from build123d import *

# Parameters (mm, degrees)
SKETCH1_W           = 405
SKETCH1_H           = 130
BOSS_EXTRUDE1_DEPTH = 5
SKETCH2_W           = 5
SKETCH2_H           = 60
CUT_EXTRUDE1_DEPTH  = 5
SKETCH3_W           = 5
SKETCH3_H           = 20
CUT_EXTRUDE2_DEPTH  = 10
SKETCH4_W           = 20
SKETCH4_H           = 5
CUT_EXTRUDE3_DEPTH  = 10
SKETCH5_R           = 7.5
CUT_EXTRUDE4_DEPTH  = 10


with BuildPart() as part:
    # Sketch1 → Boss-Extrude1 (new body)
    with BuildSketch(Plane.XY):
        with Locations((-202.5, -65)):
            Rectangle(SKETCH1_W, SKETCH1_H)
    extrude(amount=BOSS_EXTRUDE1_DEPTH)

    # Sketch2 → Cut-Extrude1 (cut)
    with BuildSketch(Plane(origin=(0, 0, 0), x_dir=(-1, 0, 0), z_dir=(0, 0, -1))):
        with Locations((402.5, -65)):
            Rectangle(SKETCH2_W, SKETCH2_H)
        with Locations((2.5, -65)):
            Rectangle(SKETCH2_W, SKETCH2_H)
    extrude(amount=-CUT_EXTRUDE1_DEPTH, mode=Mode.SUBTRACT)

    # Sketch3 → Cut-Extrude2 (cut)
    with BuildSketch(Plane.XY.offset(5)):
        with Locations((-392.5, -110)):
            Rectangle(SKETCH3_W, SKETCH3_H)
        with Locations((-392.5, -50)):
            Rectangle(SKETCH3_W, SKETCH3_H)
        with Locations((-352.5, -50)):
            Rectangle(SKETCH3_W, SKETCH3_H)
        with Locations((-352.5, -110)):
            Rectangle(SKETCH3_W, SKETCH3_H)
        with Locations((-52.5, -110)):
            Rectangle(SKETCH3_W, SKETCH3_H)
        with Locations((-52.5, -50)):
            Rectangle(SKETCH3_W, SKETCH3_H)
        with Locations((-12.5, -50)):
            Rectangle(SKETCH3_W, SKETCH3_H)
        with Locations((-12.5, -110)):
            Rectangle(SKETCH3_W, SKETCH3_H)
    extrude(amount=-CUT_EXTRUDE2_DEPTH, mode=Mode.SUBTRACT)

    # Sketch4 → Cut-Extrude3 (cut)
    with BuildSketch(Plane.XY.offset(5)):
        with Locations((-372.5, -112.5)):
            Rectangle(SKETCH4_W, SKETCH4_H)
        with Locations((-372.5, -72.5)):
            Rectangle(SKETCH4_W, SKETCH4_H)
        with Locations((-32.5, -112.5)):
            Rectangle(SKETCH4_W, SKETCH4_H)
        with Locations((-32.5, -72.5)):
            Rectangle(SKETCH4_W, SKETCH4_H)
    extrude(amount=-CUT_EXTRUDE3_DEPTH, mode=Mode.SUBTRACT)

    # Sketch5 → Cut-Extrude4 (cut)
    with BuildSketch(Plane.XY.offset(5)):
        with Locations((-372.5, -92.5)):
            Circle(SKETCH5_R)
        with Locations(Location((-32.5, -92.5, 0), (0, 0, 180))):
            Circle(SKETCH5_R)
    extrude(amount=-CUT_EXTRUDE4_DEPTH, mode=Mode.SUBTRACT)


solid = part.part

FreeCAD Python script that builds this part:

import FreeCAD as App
import Part
import Sketcher
from FreeCAD import Vector

doc = App.newDocument("Part")
body = doc.addObject("PartDesign::Body", "Body")

# Sketch on XY plane
sketch1 = body.newObject("Sketcher::SketchObject", "Sketch")
sketch1.AttachmentSupport = (doc.getObject("XY_Plane"), [""])
sketch1.MapMode = "FlatFace"
sketch1.addGeometry([
    Part.LineSegment(Vector(-405, 0, 0), Vector(-405, -130, 0)),
    Part.LineSegment(Vector(-405, -130, 0), Vector(0, -130, 0)),
    Part.LineSegment(Vector(0, -130, 0), Vector(0, 0, 0)),
    Part.LineSegment(Vector(0, 0, 0), Vector(-405, 0, 0)),
], False)
sketch1.addConstraint([
    Sketcher.Constraint("Coincident", 0, 2, 1, 1),
    Sketcher.Constraint("Coincident", 1, 2, 2, 1),
    Sketcher.Constraint("Coincident", 2, 2, 3, 1),
    Sketcher.Constraint("Coincident", 3, 2, 0, 1),
    Sketcher.Constraint("Vertical", 0),
    Sketcher.Constraint("Horizontal", 1),
    Sketcher.Constraint("Vertical", 2),
    Sketcher.Constraint("Horizontal", 3),
    Sketcher.Constraint("Coincident", 2, 2, -1, 1),
    Sketcher.Constraint("DistanceX", 1, 1, 1, 2, 405.0),
    Sketcher.Constraint("DistanceY", 0, 2, 0, 1, 130.0),
])
pad1 = body.newObject("PartDesign::Pad", "Pad")
pad1.Profile = sketch1
pad1.Length = 5

# Sketch on XY plane
sketch2 = body.newObject("Sketcher::SketchObject", "Sketch001")
sketch2.AttachmentSupport = (doc.getObject("XY_Plane"), [""])
sketch2.MapMode = "FlatFace"
sketch2.addGeometry([
    Part.LineSegment(Vector(-400, -35, 0), Vector(-400, -95, 0)),  # 0
    Part.LineSegment(Vector(-400, -95, 0), Vector(-405, -95, 0)),  # 1
    Part.LineSegment(Vector(-405, -95, 0), Vector(-405, -35, 0)),  # 2
    Part.LineSegment(Vector(-405, -35, 0), Vector(-400, -35, 0)),  # 3
    Part.LineSegment(Vector(0, -35, 0), Vector(0, -95, 0)),  # 4
    Part.LineSegment(Vector(0, -95, 0), Vector(-5, -95, 0)),  # 5
    Part.LineSegment(Vector(-5, -95, 0), Vector(-5, -35, 0)),  # 6
    Part.LineSegment(Vector(-5, -35, 0), Vector(0, -35, 0)),  # 7
], False)
sketch2.addConstraint([
    Sketcher.Constraint("Coincident", 0, 2, 1, 1),
    Sketcher.Constraint("Coincident", 1, 2, 2, 1),
    Sketcher.Constraint("Coincident", 2, 2, 3, 1),
    Sketcher.Constraint("Coincident", 3, 2, 0, 1),
    Sketcher.Constraint("Coincident", 4, 2, 5, 1),
    Sketcher.Constraint("Coincident", 5, 2, 6, 1),
    Sketcher.Constraint("Coincident", 6, 2, 7, 1),
    Sketcher.Constraint("Coincident", 7, 2, 4, 1),
    Sketcher.Constraint("Vertical", 0),
    Sketcher.Constraint("Horizontal", 1),
    Sketcher.Constraint("Vertical", 2),
    Sketcher.Constraint("Horizontal", 3),
    Sketcher.Constraint("Vertical", 4),
    Sketcher.Constraint("Horizontal", 5),
    Sketcher.Constraint("Vertical", 6),
    Sketcher.Constraint("Horizontal", 7),
    Sketcher.Constraint("PointOnObject", 4, 2, -2),
    Sketcher.Constraint("Horizontal", 1, 2, 4, 2),
    Sketcher.Constraint("Horizontal", 3, 2, 6, 2),
    Sketcher.Constraint("Equal", 3, 5),
    Sketcher.Constraint("DistanceX", 1, 2, 1, 1, 5.0),
    Sketcher.Constraint("DistanceY", 0, 2, 0, 1, 60.0),
    Sketcher.Constraint("DistanceX", 0, 2, -1, 1, 400.0),
    Sketcher.Constraint("DistanceY", 0, 2, -1, 1, 95.0),
])
pocket1 = body.newObject("PartDesign::Pocket", "Pocket")
pocket1.Profile = sketch2
pocket1.Length = 5
pocket1.Reversed = True

# Sketch on XY plane
sketch3 = body.newObject("Sketcher::SketchObject", "Sketch002")
sketch3.AttachmentSupport = (doc.getObject("XY_Plane"), [""])
sketch3.MapMode = "FlatFace"
sketch3.AttachmentOffset = App.Placement(Vector(0, 0, 5), App.Rotation())
sketch3.addGeometry([
    Part.LineSegment(Vector(-395, -100, 0), Vector(-395, -120, 0)),  # 0
    Part.LineSegment(Vector(-395, -120, 0), Vector(-390, -120, 0)),  # 1
    Part.LineSegment(Vector(-390, -120, 0), Vector(-390, -100, 0)),  # 2
    Part.LineSegment(Vector(-390, -100, 0), Vector(-395, -100, 0)),  # 3
    Part.LineSegment(Vector(-395, -40, 0), Vector(-395, -60, 0)),  # 4
    Part.LineSegment(Vector(-395, -60, 0), Vector(-390, -60, 0)),  # 5
    Part.LineSegment(Vector(-390, -60, 0), Vector(-390, -40, 0)),  # 6
    Part.LineSegment(Vector(-390, -40, 0), Vector(-395, -40, 0)),  # 7
    Part.LineSegment(Vector(-355, -40, 0), Vector(-355, -60, 0)),  # 8
    Part.LineSegment(Vector(-355, -60, 0), Vector(-350, -60, 0)),  # 9
    Part.LineSegment(Vector(-350, -60, 0), Vector(-350, -40, 0)),  # 10
    Part.LineSegment(Vector(-350, -40, 0), Vector(-355, -40, 0)),  # 11
    Part.LineSegment(Vector(-355, -100, 0), Vector(-355, -120, 0)),  # 12
    Part.LineSegment(Vector(-355, -120, 0), Vector(-350, -120, 0)),  # 13
    Part.LineSegment(Vector(-350, -120, 0), Vector(-350, -100, 0)),  # 14
    Part.LineSegment(Vector(-350, -100, 0), Vector(-355, -100, 0)),  # 15
    Part.LineSegment(Vector(-55, -100, 0), Vector(-55, -120, 0)),  # 16
    Part.LineSegment(Vector(-55, -120, 0), Vector(-50, -120, 0)),  # 17
    Part.LineSegment(Vector(-50, -120, 0), Vector(-50, -100, 0)),  # 18
    Part.LineSegment(Vector(-50, -100, 0), Vector(-55, -100, 0)),  # 19
    Part.LineSegment(Vector(-55, -40, 0), Vector(-55, -60, 0)),  # 20
    Part.LineSegment(Vector(-55, -60, 0), Vector(-50, -60, 0)),  # 21
    Part.LineSegment(Vector(-50, -60, 0), Vector(-50, -40, 0)),  # 22
    Part.LineSegment(Vector(-50, -40, 0), Vector(-55, -40, 0)),  # 23
    Part.LineSegment(Vector(-15, -40, 0), Vector(-15, -60, 0)),  # 24
    Part.LineSegment(Vector(-15, -60, 0), Vector(-10, -60, 0)),  # 25
    Part.LineSegment(Vector(-10, -60, 0), Vector(-10, -40, 0)),  # 26
    Part.LineSegment(Vector(-10, -40, 0), Vector(-15, -40, 0)),  # 27
    Part.LineSegment(Vector(-15, -100, 0), Vector(-15, -120, 0)),  # 28
    Part.LineSegment(Vector(-15, -120, 0), Vector(-10, -120, 0)),  # 29
    Part.LineSegment(Vector(-10, -120, 0), Vector(-10, -100, 0)),  # 30
    Part.LineSegment(Vector(-10, -100, 0), Vector(-15, -100, 0)),  # 31
], False)
sketch3.addConstraint([
    Sketcher.Constraint("Coincident", 0, 2, 1, 1),
    Sketcher.Constraint("Coincident", 1, 2, 2, 1),
    Sketcher.Constraint("Coincident", 2, 2, 3, 1),
    Sketcher.Constraint("Coincident", 3, 2, 0, 1),
    Sketcher.Constraint("Coincident", 4, 2, 5, 1),
    Sketcher.Constraint("Coincident", 5, 2, 6, 1),
    Sketcher.Constraint("Coincident", 6, 2, 7, 1),
    Sketcher.Constraint("Coincident", 7, 2, 4, 1),
    Sketcher.Constraint("Coincident", 8, 2, 9, 1),
    Sketcher.Constraint("Coincident", 9, 2, 10, 1),
    Sketcher.Constraint("Coincident", 10, 2, 11, 1),
    Sketcher.Constraint("Coincident", 11, 2, 8, 1),
    Sketcher.Constraint("Coincident", 12, 2, 13, 1),
    Sketcher.Constraint("Coincident", 13, 2, 14, 1),
    Sketcher.Constraint("Coincident", 14, 2, 15, 1),
    Sketcher.Constraint("Coincident", 15, 2, 12, 1),
    Sketcher.Constraint("Coincident", 16, 2, 17, 1),
    Sketcher.Constraint("Coincident", 17, 2, 18, 1),
    Sketcher.Constraint("Coincident", 18, 2, 19, 1),
    Sketcher.Constraint("Coincident", 19, 2, 16, 1),
    Sketcher.Constraint("Coincident", 20, 2, 21, 1),
    Sketcher.Constraint("Coincident", 21, 2, 22, 1),
    Sketcher.Constraint("Coincident", 22, 2, 23, 1),
    Sketcher.Constraint("Coincident", 23, 2, 20, 1),
    Sketcher.Constraint("Coincident", 24, 2, 25, 1),
    Sketcher.Constraint("Coincident", 25, 2, 26, 1),
    Sketcher.Constraint("Coincident", 26, 2, 27, 1),
    Sketcher.Constraint("Coincident", 27, 2, 24, 1),
    Sketcher.Constraint("Coincident", 28, 2, 29, 1),
    Sketcher.Constraint("Coincident", 29, 2, 30, 1),
    Sketcher.Constraint("Coincident", 30, 2, 31, 1),
    Sketcher.Constraint("Coincident", 31, 2, 28, 1),
    Sketcher.Constraint("Vertical", 0),
    Sketcher.Constraint("Horizontal", 1),
    Sketcher.Constraint("Vertical", 2),
    Sketcher.Constraint("Horizontal", 3),
    Sketcher.Constraint("Vertical", 4),
    Sketcher.Constraint("Horizontal", 5),
    Sketcher.Constraint("Vertical", 6),
    Sketcher.Constraint("Horizontal", 7),
    Sketcher.Constraint("Vertical", 8),
    Sketcher.Constraint("Horizontal", 9),
    Sketcher.Constraint("Vertical", 10),
    Sketcher.Constraint("Horizontal", 11),
    Sketcher.Constraint("Vertical", 12),
    Sketcher.Constraint("Horizontal", 13),
    Sketcher.Constraint("Vertical", 14),
    Sketcher.Constraint("Horizontal", 15),
    Sketcher.Constraint("Vertical", 16),
    Sketcher.Constraint("Horizontal", 17),
    Sketcher.Constraint("Vertical", 18),
    Sketcher.Constraint("Horizontal", 19),
    Sketcher.Constraint("Vertical", 20),
    Sketcher.Constraint("Horizontal", 21),
    Sketcher.Constraint("Vertical", 22),
    Sketcher.Constraint("Horizontal", 23),
    Sketcher.Constraint("Vertical", 24),
    Sketcher.Constraint("Horizontal", 25),
    Sketcher.Constraint("Vertical", 26),
    Sketcher.Constraint("Horizontal", 27),
    Sketcher.Constraint("Vertical", 28),
    Sketcher.Constraint("Horizontal", 29),
    Sketcher.Constraint("Vertical", 30),
    Sketcher.Constraint("Horizontal", 31),
    Sketcher.Constraint("Horizontal", 5, 2, 8, 2),
    Sketcher.Constraint("Horizontal", 7, 2, 10, 2),
    Sketcher.Constraint("Horizontal", 1, 2, 12, 2),
    Sketcher.Constraint("Horizontal", 3, 2, 14, 2),
    Sketcher.Constraint("Horizontal", 13, 2, 16, 2),
    Sketcher.Constraint("Horizontal", 15, 2, 18, 2),
    Sketcher.Constraint("Horizontal", 9, 2, 20, 2),
    Sketcher.Constraint("Horizontal", 11, 2, 22, 2),
    Sketcher.Constraint("Horizontal", 21, 2, 24, 2),
    Sketcher.Constraint("Horizontal", 23, 2, 26, 2),
    Sketcher.Constraint("Horizontal", 17, 2, 28, 2),
    Sketcher.Constraint("Horizontal", 19, 2, 30, 2),
    Sketcher.Constraint("Vertical", 3, 2, 4, 2),
    Sketcher.Constraint("Vertical", 2, 2, 5, 2),
    Sketcher.Constraint("Vertical", 11, 2, 12, 2),
    Sketcher.Constraint("Vertical", 10, 2, 13, 2),
    Sketcher.Constraint("Vertical", 19, 2, 20, 2),
    Sketcher.Constraint("Vertical", 18, 2, 21, 2),
    Sketcher.Constraint("Vertical", 27, 2, 28, 2),
    Sketcher.Constraint("Vertical", 26, 2, 29, 2),
    Sketcher.Constraint("Equal", 7, 9),
    Sketcher.Constraint("Equal", 15, 17),
    Sketcher.Constraint("Equal", 23, 25),
    Sketcher.Constraint("Equal", 2, 4),
    Sketcher.Constraint("DistanceX", 1, 1, 1, 2, 5.0),
    Sketcher.Constraint("DistanceY", 0, 2, 0, 1, 20.0),
    Sketcher.Constraint("DistanceX", 0, 2, -1, 1, 395.0),
    Sketcher.Constraint("DistanceY", 0, 2, -1, 1, 120.0),
    Sketcher.Constraint("DistanceY", 4, 2, -1, 1, 60.0),
    Sketcher.Constraint("DistanceX", 8, 2, -1, 1, 355.0),
    Sketcher.Constraint("DistanceX", 16, 2, -1, 1, 55.0),
    Sketcher.Constraint("DistanceX", 24, 2, -1, 1, 15.0),
])
pocket2 = body.newObject("PartDesign::Pocket", "Pocket001")
pocket2.Profile = sketch3
pocket2.Length = 10

# Sketch on XY plane
sketch4 = body.newObject("Sketcher::SketchObject", "Sketch003")
sketch4.AttachmentSupport = (doc.getObject("XY_Plane"), [""])
sketch4.MapMode = "FlatFace"
sketch4.AttachmentOffset = App.Placement(Vector(0, 0, 5), App.Rotation())
sketch4.addGeometry([
    Part.LineSegment(Vector(-382, -110, 0), Vector(-382, -115, 0)),  # 0
    Part.LineSegment(Vector(-382, -115, 0), Vector(-362, -115, 0)),  # 1
    Part.LineSegment(Vector(-362, -115, 0), Vector(-362, -110, 0)),  # 2
    Part.LineSegment(Vector(-362, -110, 0), Vector(-382, -110, 0)),  # 3
    Part.LineSegment(Vector(-382, -70, 0), Vector(-382, -75, 0)),  # 4
    Part.LineSegment(Vector(-382, -75, 0), Vector(-362, -75, 0)),  # 5
    Part.LineSegment(Vector(-362, -75, 0), Vector(-362, -70, 0)),  # 6
    Part.LineSegment(Vector(-362, -70, 0), Vector(-382, -70, 0)),  # 7
    Part.LineSegment(Vector(-42, -110, 0), Vector(-42, -115, 0)),  # 8
    Part.LineSegment(Vector(-42, -115, 0), Vector(-22, -115, 0)),  # 9
    Part.LineSegment(Vector(-22, -115, 0), Vector(-22, -110, 0)),  # 10
    Part.LineSegment(Vector(-22, -110, 0), Vector(-42, -110, 0)),  # 11
    Part.LineSegment(Vector(-42, -70, 0), Vector(-42, -75, 0)),  # 12
    Part.LineSegment(Vector(-42, -75, 0), Vector(-22, -75, 0)),  # 13
    Part.LineSegment(Vector(-22, -75, 0), Vector(-22, -70, 0)),  # 14
    Part.LineSegment(Vector(-22, -70, 0), Vector(-42, -70, 0)),  # 15
], False)
sketch4.addConstraint([
    Sketcher.Constraint("Coincident", 0, 2, 1, 1),
    Sketcher.Constraint("Coincident", 1, 2, 2, 1),
    Sketcher.Constraint("Coincident", 2, 2, 3, 1),
    Sketcher.Constraint("Coincident", 3, 2, 0, 1),
    Sketcher.Constraint("Coincident", 4, 2, 5, 1),
    Sketcher.Constraint("Coincident", 5, 2, 6, 1),
    Sketcher.Constraint("Coincident", 6, 2, 7, 1),
    Sketcher.Constraint("Coincident", 7, 2, 4, 1),
    Sketcher.Constraint("Coincident", 8, 2, 9, 1),
    Sketcher.Constraint("Coincident", 9, 2, 10, 1),
    Sketcher.Constraint("Coincident", 10, 2, 11, 1),
    Sketcher.Constraint("Coincident", 11, 2, 8, 1),
    Sketcher.Constraint("Coincident", 12, 2, 13, 1),
    Sketcher.Constraint("Coincident", 13, 2, 14, 1),
    Sketcher.Constraint("Coincident", 14, 2, 15, 1),
    Sketcher.Constraint("Coincident", 15, 2, 12, 1),
    Sketcher.Constraint("Vertical", 0),
    Sketcher.Constraint("Horizontal", 1),
    Sketcher.Constraint("Vertical", 2),
    Sketcher.Constraint("Horizontal", 3),
    Sketcher.Constraint("Vertical", 4),
    Sketcher.Constraint("Horizontal", 5),
    Sketcher.Constraint("Vertical", 6),
    Sketcher.Constraint("Horizontal", 7),
    Sketcher.Constraint("Vertical", 8),
    Sketcher.Constraint("Horizontal", 9),
    Sketcher.Constraint("Vertical", 10),
    Sketcher.Constraint("Horizontal", 11),
    Sketcher.Constraint("Vertical", 12),
    Sketcher.Constraint("Horizontal", 13),
    Sketcher.Constraint("Vertical", 14),
    Sketcher.Constraint("Horizontal", 15),
    Sketcher.Constraint("Horizontal", 1, 2, 8, 2),
    Sketcher.Constraint("Horizontal", 3, 2, 10, 2),
    Sketcher.Constraint("Horizontal", 5, 2, 12, 2),
    Sketcher.Constraint("Horizontal", 7, 2, 14, 2),
    Sketcher.Constraint("Vertical", 3, 2, 4, 2),
    Sketcher.Constraint("Vertical", 2, 2, 5, 2),
    Sketcher.Constraint("Vertical", 11, 2, 12, 2),
    Sketcher.Constraint("Vertical", 10, 2, 13, 2),
    Sketcher.Constraint("Equal", 7, 9),
    Sketcher.Constraint("Equal", 2, 4),
    Sketcher.Constraint("DistanceX", 1, 1, 1, 2, 20.0),
    Sketcher.Constraint("DistanceY", 0, 2, 0, 1, 5.0),
    Sketcher.Constraint("DistanceY", 0, 2, -1, 1, 115.0),
    Sketcher.Constraint("DistanceY", 4, 2, -1, 1, 75.0),
    Sketcher.Constraint("DistanceX", 1, 2, 8, 2, 320.0),
    Sketcher.Constraint("DistanceX", 0, 2, -1, 1, 382.5),
])
pocket3 = body.newObject("PartDesign::Pocket", "Pocket002")
pocket3.Profile = sketch4
pocket3.Length = 10

# Sketch on XY plane
sketch5 = body.newObject("Sketcher::SketchObject", "Sketch004")
sketch5.AttachmentSupport = (doc.getObject("XY_Plane"), [""])
sketch5.MapMode = "FlatFace"
sketch5.AttachmentOffset = App.Placement(Vector(0, 0, 5), App.Rotation())
sketch5.addGeometry([
    Part.Circle(Vector(-372, -92, 0), Vector(0, 0, 1), 8),
    Part.Circle(Vector(-32, -92, 0), Vector(0, 0, 1), 8),
], False)
sketch5.addConstraint([
    Sketcher.Constraint("Equal", 0, 1),
    Sketcher.Constraint("Horizontal", 0, 3, 1, 3),
    Sketcher.Constraint("Diameter", 0, 15.0),
    Sketcher.Constraint("DistanceX", 0, 3, 1, 3, 340.0),
    Sketcher.Constraint("DistanceX", 0, 3, -1, 1, 372.5),
    Sketcher.Constraint("DistanceY", 0, 3, -1, 1, 92.5),
])
pocket4 = body.newObject("PartDesign::Pocket", "Pocket003")
pocket4.Profile = sketch5
pocket4.Length = 10

doc.recompute()
